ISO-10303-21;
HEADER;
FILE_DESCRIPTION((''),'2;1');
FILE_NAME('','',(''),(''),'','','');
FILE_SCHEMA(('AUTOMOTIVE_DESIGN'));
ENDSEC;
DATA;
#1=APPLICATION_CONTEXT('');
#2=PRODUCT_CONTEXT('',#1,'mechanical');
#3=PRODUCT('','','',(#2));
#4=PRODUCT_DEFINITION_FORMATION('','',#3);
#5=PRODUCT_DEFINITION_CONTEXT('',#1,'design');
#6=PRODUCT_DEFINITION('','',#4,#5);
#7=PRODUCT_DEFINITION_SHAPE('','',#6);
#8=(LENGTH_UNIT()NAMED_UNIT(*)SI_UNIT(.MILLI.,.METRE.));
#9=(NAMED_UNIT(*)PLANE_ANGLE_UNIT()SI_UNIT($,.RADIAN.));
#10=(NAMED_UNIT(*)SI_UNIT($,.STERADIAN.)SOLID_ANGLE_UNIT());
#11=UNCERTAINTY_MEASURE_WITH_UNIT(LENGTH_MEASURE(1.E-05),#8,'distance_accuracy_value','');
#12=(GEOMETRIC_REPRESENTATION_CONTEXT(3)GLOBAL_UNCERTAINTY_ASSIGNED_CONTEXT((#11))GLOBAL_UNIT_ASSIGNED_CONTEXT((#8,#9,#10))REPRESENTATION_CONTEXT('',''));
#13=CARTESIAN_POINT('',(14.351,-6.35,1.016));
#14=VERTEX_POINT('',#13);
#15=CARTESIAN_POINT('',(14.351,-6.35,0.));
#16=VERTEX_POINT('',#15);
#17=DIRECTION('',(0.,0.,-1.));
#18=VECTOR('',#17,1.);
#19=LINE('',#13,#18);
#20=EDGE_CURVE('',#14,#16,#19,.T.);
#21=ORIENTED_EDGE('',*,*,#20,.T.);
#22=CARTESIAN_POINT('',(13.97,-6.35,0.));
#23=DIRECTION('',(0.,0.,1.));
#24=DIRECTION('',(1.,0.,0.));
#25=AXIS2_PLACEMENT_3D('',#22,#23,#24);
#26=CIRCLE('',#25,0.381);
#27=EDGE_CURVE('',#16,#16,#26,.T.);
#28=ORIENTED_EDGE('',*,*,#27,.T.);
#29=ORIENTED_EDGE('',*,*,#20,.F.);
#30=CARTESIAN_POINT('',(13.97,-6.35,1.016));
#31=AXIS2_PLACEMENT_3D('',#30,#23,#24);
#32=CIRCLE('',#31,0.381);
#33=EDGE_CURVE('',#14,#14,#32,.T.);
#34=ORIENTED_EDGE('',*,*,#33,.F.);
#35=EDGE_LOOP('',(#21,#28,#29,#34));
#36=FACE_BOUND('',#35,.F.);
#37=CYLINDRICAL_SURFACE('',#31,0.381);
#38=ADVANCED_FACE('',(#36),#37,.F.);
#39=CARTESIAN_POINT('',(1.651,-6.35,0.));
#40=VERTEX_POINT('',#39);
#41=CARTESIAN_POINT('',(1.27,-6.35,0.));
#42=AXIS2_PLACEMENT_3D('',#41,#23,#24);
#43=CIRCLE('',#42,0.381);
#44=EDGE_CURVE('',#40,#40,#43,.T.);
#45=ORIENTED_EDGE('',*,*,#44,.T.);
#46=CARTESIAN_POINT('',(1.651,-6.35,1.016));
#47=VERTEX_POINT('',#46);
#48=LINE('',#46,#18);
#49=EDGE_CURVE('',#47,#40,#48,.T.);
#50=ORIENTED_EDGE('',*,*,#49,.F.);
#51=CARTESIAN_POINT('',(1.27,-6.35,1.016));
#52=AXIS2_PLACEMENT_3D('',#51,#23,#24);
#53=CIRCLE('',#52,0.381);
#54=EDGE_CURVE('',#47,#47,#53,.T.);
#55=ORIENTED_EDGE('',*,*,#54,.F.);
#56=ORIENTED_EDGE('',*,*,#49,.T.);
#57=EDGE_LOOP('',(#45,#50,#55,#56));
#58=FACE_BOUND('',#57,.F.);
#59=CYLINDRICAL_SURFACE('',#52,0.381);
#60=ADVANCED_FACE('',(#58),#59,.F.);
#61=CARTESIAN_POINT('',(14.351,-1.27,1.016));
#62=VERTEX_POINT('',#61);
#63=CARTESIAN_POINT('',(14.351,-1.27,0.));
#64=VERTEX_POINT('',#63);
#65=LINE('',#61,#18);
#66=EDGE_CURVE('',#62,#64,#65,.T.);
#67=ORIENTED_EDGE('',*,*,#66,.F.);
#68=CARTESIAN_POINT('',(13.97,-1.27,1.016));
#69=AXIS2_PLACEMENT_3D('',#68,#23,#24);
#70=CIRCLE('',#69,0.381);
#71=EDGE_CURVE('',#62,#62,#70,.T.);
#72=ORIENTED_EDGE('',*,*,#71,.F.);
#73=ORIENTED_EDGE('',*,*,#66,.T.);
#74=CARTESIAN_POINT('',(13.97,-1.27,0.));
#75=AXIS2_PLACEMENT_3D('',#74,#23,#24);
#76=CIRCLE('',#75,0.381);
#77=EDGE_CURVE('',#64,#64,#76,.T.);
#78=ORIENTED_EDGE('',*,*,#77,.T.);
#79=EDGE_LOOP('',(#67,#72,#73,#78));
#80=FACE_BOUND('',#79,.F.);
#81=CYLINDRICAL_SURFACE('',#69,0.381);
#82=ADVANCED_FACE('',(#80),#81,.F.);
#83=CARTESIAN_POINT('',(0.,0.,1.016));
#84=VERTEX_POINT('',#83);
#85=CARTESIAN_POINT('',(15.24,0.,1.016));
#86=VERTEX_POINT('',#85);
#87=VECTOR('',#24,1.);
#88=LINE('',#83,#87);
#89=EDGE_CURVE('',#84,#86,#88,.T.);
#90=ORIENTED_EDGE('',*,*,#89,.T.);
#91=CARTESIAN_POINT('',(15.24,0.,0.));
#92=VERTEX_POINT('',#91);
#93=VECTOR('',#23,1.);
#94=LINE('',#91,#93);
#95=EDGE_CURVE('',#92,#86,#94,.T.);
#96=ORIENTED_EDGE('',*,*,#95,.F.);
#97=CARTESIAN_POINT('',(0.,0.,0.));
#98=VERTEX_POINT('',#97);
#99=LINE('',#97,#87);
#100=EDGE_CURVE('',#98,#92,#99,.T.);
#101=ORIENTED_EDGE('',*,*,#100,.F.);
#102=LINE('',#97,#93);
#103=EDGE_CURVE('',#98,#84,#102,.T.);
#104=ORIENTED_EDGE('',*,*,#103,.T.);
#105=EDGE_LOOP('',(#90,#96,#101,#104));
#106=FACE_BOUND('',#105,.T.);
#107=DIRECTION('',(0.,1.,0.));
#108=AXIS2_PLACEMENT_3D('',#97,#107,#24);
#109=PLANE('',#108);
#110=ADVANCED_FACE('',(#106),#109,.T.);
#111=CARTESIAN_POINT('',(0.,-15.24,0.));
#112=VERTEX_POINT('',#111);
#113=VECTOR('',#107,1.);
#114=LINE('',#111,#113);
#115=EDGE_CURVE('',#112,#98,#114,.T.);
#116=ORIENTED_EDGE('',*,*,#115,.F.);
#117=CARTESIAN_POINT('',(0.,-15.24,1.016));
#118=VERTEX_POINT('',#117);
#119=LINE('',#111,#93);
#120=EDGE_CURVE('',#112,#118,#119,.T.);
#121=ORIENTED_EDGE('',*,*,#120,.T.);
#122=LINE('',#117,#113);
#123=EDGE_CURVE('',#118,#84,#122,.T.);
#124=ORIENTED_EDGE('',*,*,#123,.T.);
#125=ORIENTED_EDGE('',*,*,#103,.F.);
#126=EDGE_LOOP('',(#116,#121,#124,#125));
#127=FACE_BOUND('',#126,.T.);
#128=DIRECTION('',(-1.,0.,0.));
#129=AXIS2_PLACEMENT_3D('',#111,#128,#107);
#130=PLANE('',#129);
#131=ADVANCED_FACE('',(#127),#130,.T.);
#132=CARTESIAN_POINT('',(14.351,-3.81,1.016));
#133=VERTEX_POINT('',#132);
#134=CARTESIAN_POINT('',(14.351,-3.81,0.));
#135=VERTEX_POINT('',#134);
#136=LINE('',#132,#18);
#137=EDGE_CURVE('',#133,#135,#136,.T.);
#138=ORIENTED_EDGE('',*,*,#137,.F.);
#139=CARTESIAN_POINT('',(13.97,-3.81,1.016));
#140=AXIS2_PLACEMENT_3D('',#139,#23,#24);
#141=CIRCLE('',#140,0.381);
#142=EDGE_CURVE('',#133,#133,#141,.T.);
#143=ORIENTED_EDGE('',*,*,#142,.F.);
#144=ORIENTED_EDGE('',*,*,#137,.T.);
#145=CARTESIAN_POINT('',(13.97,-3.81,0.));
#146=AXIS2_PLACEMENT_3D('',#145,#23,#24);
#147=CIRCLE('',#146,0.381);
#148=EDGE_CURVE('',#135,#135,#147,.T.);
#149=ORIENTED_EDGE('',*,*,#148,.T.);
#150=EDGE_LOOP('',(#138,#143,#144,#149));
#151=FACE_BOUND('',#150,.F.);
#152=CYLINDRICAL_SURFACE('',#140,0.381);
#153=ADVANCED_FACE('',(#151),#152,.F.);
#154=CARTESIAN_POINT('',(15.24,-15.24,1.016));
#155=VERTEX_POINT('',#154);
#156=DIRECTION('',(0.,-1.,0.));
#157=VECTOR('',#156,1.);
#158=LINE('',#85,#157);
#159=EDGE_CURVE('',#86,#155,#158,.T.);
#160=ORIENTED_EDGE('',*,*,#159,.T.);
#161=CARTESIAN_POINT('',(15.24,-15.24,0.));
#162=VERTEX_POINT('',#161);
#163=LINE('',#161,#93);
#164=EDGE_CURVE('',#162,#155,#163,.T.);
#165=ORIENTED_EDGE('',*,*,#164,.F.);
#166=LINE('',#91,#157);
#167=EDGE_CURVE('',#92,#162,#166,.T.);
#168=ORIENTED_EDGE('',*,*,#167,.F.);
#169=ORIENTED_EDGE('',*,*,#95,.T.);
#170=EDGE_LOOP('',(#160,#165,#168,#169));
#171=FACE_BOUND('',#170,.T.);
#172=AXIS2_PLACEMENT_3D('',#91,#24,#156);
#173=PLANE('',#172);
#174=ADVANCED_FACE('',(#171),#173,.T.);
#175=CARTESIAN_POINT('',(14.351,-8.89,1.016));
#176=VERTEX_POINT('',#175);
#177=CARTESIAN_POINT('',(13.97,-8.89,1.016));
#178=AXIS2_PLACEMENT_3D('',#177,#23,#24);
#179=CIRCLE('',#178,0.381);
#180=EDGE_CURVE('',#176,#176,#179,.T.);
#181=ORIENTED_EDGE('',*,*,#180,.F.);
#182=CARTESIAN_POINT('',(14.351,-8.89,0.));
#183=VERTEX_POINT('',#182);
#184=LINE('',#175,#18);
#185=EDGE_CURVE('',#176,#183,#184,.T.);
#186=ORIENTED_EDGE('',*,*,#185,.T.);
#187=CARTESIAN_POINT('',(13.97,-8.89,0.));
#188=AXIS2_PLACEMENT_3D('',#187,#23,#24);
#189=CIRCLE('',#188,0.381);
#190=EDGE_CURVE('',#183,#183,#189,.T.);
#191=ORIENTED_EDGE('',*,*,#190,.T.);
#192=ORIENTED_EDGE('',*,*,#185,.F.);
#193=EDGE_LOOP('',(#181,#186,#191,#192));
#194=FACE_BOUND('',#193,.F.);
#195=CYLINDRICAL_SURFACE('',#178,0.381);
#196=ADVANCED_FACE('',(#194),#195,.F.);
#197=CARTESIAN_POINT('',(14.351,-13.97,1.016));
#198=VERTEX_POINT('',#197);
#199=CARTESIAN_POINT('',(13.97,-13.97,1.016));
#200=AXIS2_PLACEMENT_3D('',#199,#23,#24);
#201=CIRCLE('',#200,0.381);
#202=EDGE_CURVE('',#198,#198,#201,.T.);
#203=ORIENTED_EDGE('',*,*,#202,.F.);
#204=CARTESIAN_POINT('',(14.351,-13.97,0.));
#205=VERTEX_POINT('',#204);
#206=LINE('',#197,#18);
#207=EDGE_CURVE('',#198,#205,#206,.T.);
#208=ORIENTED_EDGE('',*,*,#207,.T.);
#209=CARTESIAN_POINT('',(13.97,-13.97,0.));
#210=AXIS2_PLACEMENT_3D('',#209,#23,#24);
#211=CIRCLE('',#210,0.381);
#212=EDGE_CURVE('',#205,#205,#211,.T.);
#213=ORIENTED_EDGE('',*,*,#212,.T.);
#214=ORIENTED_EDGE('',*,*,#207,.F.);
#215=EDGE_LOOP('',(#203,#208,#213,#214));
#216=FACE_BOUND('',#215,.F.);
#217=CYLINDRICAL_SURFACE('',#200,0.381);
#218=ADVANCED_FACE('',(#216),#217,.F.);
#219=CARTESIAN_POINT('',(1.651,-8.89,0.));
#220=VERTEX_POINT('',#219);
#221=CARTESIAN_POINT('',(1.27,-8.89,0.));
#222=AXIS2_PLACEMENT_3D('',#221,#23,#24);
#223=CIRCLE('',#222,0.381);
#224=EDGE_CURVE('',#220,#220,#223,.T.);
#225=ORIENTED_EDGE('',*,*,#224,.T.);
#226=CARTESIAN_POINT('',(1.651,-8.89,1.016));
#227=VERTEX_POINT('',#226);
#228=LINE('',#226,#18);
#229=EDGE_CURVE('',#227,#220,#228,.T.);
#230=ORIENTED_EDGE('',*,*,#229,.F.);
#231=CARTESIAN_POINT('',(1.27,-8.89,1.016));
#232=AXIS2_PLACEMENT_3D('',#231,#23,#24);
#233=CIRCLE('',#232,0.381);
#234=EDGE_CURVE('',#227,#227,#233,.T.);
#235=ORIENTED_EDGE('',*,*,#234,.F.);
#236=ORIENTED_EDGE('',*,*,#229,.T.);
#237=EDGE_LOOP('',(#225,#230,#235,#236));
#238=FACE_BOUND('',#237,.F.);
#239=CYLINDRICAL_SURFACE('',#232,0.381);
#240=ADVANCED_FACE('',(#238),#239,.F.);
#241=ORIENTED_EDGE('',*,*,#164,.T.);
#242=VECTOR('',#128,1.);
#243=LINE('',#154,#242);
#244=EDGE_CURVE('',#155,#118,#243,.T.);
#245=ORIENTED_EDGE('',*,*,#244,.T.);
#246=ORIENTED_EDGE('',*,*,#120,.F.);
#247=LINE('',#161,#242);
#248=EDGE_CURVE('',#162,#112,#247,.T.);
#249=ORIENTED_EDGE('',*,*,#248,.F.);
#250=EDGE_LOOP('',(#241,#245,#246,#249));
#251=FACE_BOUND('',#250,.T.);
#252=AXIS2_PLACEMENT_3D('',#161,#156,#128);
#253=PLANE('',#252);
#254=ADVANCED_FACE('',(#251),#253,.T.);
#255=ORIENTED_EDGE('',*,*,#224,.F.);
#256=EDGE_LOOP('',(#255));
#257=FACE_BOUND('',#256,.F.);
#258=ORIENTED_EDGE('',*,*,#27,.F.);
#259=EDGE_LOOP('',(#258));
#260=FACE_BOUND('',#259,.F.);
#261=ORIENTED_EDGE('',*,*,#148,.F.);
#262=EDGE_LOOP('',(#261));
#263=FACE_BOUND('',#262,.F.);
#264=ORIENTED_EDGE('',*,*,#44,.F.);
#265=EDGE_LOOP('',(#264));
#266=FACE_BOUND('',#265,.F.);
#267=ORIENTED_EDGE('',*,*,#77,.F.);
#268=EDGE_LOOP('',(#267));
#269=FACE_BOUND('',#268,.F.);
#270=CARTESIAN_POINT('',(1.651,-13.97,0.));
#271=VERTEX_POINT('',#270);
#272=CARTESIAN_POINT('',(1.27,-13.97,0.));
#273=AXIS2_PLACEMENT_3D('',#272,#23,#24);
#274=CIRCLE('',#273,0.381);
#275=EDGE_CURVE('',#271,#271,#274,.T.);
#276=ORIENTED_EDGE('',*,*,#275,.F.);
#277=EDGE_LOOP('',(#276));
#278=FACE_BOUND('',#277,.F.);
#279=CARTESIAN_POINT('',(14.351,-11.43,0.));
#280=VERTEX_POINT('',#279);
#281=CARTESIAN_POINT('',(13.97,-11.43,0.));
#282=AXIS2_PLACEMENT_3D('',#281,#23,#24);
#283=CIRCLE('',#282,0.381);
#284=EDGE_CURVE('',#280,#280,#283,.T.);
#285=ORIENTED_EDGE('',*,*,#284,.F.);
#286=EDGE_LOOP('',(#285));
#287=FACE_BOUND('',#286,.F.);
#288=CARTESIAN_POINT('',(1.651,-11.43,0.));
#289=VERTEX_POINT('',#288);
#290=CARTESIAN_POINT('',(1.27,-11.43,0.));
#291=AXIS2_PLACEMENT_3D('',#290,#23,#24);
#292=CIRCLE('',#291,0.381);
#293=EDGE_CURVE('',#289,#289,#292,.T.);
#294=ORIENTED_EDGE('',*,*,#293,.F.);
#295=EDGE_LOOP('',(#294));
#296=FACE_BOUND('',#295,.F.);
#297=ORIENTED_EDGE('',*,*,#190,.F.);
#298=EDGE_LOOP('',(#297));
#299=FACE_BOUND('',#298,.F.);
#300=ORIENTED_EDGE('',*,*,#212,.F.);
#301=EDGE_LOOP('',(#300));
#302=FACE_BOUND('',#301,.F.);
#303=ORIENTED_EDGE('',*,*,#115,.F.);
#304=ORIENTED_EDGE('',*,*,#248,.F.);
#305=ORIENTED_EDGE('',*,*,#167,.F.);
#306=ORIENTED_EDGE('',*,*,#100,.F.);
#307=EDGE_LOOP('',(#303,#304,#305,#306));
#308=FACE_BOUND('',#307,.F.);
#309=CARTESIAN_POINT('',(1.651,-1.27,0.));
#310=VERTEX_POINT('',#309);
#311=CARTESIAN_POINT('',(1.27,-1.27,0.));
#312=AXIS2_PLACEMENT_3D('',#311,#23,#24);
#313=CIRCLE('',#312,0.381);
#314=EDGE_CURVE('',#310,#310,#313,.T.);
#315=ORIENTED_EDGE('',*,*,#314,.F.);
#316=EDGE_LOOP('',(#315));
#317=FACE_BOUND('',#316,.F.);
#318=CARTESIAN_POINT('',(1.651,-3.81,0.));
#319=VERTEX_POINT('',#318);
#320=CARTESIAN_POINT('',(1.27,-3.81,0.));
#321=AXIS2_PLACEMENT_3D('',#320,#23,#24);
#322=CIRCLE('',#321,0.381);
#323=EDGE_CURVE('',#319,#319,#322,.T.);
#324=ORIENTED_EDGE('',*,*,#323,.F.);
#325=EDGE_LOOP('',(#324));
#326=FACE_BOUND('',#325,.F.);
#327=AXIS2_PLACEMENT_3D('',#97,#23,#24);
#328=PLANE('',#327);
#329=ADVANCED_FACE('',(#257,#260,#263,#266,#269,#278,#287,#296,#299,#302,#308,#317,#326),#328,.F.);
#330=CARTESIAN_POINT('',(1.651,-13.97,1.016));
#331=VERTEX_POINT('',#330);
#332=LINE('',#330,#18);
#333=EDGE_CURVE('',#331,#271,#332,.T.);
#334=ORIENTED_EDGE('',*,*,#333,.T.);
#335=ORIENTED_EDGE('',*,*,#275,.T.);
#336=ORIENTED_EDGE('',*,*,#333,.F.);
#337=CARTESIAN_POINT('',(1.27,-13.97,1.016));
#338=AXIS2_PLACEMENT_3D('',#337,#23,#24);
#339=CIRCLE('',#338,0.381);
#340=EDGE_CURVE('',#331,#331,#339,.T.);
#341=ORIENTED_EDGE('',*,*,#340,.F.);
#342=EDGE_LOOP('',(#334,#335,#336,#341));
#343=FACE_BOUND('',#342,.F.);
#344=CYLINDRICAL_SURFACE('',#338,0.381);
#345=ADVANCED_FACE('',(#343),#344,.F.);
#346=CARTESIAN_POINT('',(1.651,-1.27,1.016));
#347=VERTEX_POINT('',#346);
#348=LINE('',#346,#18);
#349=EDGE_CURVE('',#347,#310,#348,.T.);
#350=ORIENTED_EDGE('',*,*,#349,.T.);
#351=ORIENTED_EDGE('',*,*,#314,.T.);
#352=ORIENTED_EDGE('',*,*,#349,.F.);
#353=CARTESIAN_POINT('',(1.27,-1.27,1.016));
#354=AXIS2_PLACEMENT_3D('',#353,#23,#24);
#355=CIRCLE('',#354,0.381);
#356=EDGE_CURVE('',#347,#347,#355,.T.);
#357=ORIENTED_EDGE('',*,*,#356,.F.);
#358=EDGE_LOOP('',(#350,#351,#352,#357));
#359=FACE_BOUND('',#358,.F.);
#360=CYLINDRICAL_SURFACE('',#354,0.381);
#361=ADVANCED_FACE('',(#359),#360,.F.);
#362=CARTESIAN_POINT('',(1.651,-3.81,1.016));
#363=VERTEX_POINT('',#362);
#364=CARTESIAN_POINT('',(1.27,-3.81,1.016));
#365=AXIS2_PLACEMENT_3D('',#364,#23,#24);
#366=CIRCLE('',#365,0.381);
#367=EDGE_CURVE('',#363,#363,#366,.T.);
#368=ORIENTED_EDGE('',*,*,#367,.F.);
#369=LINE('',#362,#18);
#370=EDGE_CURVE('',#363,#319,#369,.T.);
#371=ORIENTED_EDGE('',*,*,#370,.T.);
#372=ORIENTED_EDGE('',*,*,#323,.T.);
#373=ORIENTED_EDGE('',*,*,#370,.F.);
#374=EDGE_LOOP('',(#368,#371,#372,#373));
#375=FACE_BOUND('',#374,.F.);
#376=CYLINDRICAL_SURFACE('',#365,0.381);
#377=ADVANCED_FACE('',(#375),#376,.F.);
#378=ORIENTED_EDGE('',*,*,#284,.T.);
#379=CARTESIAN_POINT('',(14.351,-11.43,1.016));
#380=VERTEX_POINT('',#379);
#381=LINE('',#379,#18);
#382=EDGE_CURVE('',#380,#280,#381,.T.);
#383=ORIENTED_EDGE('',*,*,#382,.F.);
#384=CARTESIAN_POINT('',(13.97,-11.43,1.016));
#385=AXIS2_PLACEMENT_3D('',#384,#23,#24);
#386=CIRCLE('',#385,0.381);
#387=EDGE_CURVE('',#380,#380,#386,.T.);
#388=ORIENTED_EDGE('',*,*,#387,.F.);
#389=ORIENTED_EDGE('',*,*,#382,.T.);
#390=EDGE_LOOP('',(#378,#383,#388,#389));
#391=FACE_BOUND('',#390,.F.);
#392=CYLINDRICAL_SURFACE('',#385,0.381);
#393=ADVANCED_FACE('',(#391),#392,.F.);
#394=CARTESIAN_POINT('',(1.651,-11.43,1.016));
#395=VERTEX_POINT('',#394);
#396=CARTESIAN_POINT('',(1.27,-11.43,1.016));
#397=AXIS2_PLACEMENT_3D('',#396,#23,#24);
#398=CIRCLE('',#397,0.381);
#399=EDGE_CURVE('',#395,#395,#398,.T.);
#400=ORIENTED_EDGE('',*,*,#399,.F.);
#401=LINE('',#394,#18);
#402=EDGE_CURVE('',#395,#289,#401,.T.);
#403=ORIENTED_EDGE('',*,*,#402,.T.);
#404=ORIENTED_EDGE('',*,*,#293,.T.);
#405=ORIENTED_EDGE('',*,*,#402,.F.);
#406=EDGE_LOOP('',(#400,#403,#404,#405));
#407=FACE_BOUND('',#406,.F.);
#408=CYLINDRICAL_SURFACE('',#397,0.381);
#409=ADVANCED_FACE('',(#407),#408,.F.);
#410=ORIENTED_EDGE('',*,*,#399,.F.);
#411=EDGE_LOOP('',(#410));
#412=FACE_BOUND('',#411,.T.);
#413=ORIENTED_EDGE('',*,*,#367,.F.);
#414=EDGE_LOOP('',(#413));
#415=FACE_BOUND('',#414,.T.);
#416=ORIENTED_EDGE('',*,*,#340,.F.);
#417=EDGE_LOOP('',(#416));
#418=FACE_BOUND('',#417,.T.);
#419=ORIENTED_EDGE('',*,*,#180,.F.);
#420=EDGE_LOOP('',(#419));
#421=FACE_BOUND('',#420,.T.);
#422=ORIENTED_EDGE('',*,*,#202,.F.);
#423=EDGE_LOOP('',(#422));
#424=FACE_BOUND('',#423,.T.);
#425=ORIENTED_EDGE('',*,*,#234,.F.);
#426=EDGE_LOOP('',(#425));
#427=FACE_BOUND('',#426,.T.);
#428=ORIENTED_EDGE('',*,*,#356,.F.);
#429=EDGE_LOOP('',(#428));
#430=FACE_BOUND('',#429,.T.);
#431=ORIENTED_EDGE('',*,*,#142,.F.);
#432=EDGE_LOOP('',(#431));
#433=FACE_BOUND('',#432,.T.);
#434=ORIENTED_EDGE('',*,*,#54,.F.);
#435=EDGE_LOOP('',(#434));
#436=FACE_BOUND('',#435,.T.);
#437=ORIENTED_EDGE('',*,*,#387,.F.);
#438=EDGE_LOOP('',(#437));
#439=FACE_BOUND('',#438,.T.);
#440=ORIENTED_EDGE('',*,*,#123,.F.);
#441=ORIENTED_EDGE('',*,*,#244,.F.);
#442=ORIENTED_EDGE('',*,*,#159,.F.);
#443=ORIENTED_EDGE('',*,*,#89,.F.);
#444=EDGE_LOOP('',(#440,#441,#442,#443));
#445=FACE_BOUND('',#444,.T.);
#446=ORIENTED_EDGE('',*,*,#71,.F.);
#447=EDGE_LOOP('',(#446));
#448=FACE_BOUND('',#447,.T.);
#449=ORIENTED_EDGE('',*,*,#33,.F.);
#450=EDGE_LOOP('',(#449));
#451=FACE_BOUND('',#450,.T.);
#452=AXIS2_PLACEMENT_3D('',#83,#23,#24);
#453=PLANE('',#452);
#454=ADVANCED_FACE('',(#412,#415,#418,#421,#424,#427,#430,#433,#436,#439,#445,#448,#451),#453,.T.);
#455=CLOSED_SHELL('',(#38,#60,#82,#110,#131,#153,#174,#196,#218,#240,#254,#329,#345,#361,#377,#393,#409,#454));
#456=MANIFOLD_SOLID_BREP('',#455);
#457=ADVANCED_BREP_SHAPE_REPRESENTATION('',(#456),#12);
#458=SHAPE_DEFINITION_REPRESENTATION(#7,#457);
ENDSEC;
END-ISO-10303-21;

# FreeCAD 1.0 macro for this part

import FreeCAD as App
import Part
import Sketcher
from FreeCAD import Vector
Q = App.Units.Quantity

doc = App.newDocument("Part")
body = doc.addObject("PartDesign::Body", "Body")

sketch1 = body.newObject("Sketcher::SketchObject", "Sketch")
sketch1.AttachmentSupport = (doc.getObject("XY_Plane"), [""])
sketch1.MapMode = "FlatFace"
sketch1.addGeometry(Part.LineSegment(Vector(15.24, 0, 0), Vector(0, 0, 0)), False)
sketch1.addGeometry(Part.LineSegment(Vector(0, 0, 0), Vector(0, -15.24, 0)), False)
sketch1.addGeometry(Part.LineSegment(Vector(0, -15.24, 0), Vector(15.24, -15.24, 0)), False)
sketch1.addGeometry(Part.LineSegment(Vector(15.24, -15.24, 0), Vector(15.24, 0, 0)), False)
sketch1.addConstraint(Sketcher.Constraint("Coincident", 0, 2, 1, 1))
sketch1.addConstraint(Sketcher.Constraint("Coincident", 1, 2, 2, 1))
sketch1.addConstraint(Sketcher.Constraint("Coincident", 2, 2, 3, 1))
sketch1.addConstraint(Sketcher.Constraint("Coincident", 3, 2, 0, 1))
sketch1.addConstraint(Sketcher.Constraint("Horizontal", 0))
sketch1.addConstraint(Sketcher.Constraint("Vertical", 1))
sketch1.addConstraint(Sketcher.Constraint("Horizontal", 2))
sketch1.addConstraint(Sketcher.Constraint("Vertical", 3))
sketch1.addConstraint(Sketcher.Constraint("Coincident", 0, 2, -1, 1))
sketch1.addConstraint(Sketcher.Constraint("Equal", 2, 1))
sketch1.addConstraint(Sketcher.Constraint("DistanceX", 0, 2, 0, 1, Q("0.6 in")))
pad1 = body.newObject("PartDesign::Pad", "Pad")
pad1.Profile = sketch1
pad1.Length = Q("0.04 in")

sketch2 = body.newObject("Sketcher::SketchObject", "Sketch001")
sketch2.AttachmentSupport = (doc.getObject("XY_Plane"), [""])
sketch2.MapMode = "FlatFace"
sketch2.AttachmentOffset = App.Placement(Vector(0, 0, 0.04 * 25.4), App.Rotation())
sketch2.addGeometry(Part.Circle(Vector(13.97, -1.27, 0), Vector(0, 0, 1), 0.381), False)
sketch2.addGeometry(Part.Circle(Vector(13.97, -3.81, 0), Vector(0, 0, 1), 0.381), False)
sketch2.addGeometry(Part.Circle(Vector(13.97, -6.35, 0), Vector(0, 0, 1), 0.381), False)
sketch2.addGeometry(Part.Circle(Vector(13.97, -8.89, 0), Vector(0, 0, 1), 0.381), False)
sketch2.addGeometry(Part.Circle(Vector(13.97, -11.43, 0), Vector(0, 0, 1), 0.381), False)
sketch2.addGeometry(Part.Circle(Vector(13.97, -13.97, 0), Vector(0, 0, 1), 0.381), False)
sketch2.addGeometry(Part.Circle(Vector(1.27, -1.27, 0), Vector(0, 0, 1), 0.381), False)
sketch2.addGeometry(Part.Circle(Vector(1.27, -3.81, 0), Vector(0, 0, 1), 0.381), False)
sketch2.addGeometry(Part.Circle(Vector(1.27, -6.35, 0), Vector(0, 0, 1), 0.381), False)
sketch2.addGeometry(Part.Circle(Vector(1.27, -8.89, 0), Vector(0, 0, 1), 0.381), False)
sketch2.addGeometry(Part.Circle(Vector(1.27, -11.43, 0), Vector(0, 0, 1), 0.381), False)
sketch2.addGeometry(Part.Circle(Vector(1.27, -13.97, 0), Vector(0, 0, 1), 0.381), False)
sketch2.addConstraint(Sketcher.Constraint("Equal", 0, 1))
sketch2.addConstraint(Sketcher.Constraint("Equal", 1, 2))
sketch2.addConstraint(Sketcher.Constraint("Equal", 2, 3))
sketch2.addConstraint(Sketcher.Constraint("Equal", 3, 4))
sketch2.addConstraint(Sketcher.Constraint("Equal", 4, 5))
sketch2.addConstraint(Sketcher.Constraint("Equal", 5, 6))
sketch2.addConstraint(Sketcher.Constraint("Equal", 6, 7))
sketch2.addConstraint(Sketcher.Constraint("Equal", 7, 8))
sketch2.addConstraint(Sketcher.Constraint("Equal", 8, 9))
sketch2.addConstraint(Sketcher.Constraint("Equal", 9, 10))
sketch2.addConstraint(Sketcher.Constraint("Equal", 10, 11))
sketch2.addConstraint(Sketcher.Constraint("Horizontal", 0, 3, 6, 3))
sketch2.addConstraint(Sketcher.Constraint("Horizontal", 1, 3, 7, 3))
sketch2.addConstraint(Sketcher.Constraint("Horizontal", 2, 3, 8, 3))
sketch2.addConstraint(Sketcher.Constraint("Horizontal", 3, 3, 9, 3))
sketch2.addConstraint(Sketcher.Constraint("Horizontal", 4, 3, 10, 3))
sketch2.addConstraint(Sketcher.Constraint("Horizontal", 5, 3, 11, 3))
sketch2.addConstraint(Sketcher.Constraint("Vertical", 0, 3, 1, 3))
sketch2.addConstraint(Sketcher.Constraint("Vertical", 1, 3, 2, 3))
sketch2.addConstraint(Sketcher.Constraint("Vertical", 2, 3, 3, 3))
sketch2.addConstraint(Sketcher.Constraint("Vertical", 3, 3, 4, 3))
sketch2.addConstraint(Sketcher.Constraint("Vertical", 4, 3, 5, 3))
sketch2.addConstraint(Sketcher.Constraint("Vertical", 6, 3, 7, 3))
sketch2.addConstraint(Sketcher.Constraint("Vertical", 7, 3, 8, 3))
sketch2.addConstraint(Sketcher.Constraint("Vertical", 8, 3, 9, 3))
sketch2.addConstraint(Sketcher.Constraint("Vertical", 9, 3, 10, 3))
sketch2.addConstraint(Sketcher.Constraint("Vertical", 10, 3, 11, 3))
sketch2.addConstraint(Sketcher.Constraint("Diameter", 0, Q("0.03 in")))
sketch2.addConstraint(Sketcher.Constraint("DistanceY", 1, 3, 0, 3, Q("0.1 in")))
sketch2.addConstraint(Sketcher.Constraint("DistanceY", 2, 3, 1, 3, Q("0.1 in")))
sketch2.addConstraint(Sketcher.Constraint("DistanceY", 3, 3, 2, 3, Q("0.1 in")))
sketch2.addConstraint(Sketcher.Constraint("DistanceY", 4, 3, 3, 3, Q("0.1 in")))
sketch2.addConstraint(Sketcher.Constraint("DistanceY", 5, 3, 4, 3, Q("0.1 in")))
sketch2.addConstraint(Sketcher.Constraint("DistanceX", 6, 3, 0, 3, Q("0.5 in")))
sketch2.addConstraint(Sketcher.Constraint("DistanceY", 0, 3, -1, 1, Q("0.05 in")))
sketch2.addConstraint(Sketcher.Constraint("DistanceX", -1, 1, 6, 3, Q("0.05 in")))
pocket1 = body.newObject("PartDesign::Pocket", "Pocket")
pocket1.Profile = sketch2
pocket1.Length = Q("0.05 in")

doc.recompute()
